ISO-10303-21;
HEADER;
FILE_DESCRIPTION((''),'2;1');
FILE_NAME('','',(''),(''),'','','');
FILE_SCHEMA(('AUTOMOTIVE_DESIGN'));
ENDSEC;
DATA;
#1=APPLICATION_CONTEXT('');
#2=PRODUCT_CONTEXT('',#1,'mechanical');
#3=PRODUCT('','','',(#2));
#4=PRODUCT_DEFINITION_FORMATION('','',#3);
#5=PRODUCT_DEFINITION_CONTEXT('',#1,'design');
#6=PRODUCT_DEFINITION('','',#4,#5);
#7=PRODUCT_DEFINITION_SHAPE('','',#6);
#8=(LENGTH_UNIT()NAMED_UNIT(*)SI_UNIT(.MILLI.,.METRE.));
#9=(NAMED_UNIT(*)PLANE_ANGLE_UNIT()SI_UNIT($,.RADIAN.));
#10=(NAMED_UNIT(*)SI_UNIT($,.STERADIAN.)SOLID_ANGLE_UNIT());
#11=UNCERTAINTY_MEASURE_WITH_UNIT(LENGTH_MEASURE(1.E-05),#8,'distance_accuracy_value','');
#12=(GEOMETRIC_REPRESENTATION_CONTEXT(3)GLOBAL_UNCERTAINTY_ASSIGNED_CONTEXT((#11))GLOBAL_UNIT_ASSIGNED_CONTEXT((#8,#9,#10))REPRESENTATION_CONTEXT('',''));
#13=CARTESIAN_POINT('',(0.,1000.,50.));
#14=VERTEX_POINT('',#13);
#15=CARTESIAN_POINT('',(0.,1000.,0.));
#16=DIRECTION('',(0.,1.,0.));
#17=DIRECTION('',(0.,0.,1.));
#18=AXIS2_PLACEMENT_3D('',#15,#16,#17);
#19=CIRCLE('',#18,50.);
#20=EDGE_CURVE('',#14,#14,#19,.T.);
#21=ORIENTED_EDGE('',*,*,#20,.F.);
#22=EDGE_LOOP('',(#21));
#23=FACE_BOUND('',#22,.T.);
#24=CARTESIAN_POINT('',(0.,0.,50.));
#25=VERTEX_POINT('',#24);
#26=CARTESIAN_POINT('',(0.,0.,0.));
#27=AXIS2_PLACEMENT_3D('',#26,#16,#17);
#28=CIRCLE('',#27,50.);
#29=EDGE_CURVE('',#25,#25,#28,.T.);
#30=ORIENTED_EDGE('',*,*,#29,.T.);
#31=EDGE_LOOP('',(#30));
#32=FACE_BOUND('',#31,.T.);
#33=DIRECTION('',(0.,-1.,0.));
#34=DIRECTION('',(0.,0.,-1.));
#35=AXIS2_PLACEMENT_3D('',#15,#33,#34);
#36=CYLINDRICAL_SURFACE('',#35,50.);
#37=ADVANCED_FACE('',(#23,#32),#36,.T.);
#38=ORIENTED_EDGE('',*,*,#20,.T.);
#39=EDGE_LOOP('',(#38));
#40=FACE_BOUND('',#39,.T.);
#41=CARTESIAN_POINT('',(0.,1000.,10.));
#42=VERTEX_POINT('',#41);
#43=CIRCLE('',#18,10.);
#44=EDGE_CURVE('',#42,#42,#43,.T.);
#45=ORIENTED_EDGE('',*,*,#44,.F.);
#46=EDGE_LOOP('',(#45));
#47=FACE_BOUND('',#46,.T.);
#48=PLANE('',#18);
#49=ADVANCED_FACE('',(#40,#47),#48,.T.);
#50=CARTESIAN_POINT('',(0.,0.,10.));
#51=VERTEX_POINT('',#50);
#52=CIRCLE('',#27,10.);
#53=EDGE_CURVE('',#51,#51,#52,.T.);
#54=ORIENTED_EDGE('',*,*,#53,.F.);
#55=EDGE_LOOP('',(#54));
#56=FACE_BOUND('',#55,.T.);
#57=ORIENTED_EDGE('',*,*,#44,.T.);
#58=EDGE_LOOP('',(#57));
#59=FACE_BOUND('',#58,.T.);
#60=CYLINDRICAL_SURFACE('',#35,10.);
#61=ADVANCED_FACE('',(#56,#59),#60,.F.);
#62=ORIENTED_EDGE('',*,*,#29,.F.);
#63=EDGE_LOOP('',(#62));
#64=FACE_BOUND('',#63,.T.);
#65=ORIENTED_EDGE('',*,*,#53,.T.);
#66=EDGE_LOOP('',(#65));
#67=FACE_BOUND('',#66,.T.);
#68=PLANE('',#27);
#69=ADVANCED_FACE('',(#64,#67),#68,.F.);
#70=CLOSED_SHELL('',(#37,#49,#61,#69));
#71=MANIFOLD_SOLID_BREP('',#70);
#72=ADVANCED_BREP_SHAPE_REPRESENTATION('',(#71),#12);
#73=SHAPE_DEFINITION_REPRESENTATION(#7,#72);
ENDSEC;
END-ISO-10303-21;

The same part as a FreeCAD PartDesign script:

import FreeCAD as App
import Part
import Sketcher

doc = App.newDocument("Part")
body = doc.addObject("PartDesign::Body", "Body")

sketch1 = body.newObject("Sketcher::SketchObject", "Sketch")
sketch1.AttachmentSupport = (doc.getObject("XZ_Plane"), [""])
sketch1.MapMode = "FlatFace"
sketch1.addGeometry([
    Part.Circle(App.Vector(0, 0, 0), App.Vector(0, 0, 1), 50),
    Part.Circle(App.Vector(0, 0, 0), App.Vector(0, 0, 1), 10),
], False)
sketch1.addConstraint([
    Sketcher.Constraint("Coincident", 0, 3, -1, 1),
    Sketcher.Constraint("Coincident", 1, 3, -1, 1),
    Sketcher.Constraint("Diameter", 0, 100.0),
    Sketcher.Constraint("Diameter", 1, 20.0),
])
pad1 = body.newObject("PartDesign::Pad", "Pad")
pad1.Profile = sketch1
pad1.Length = 1000
pad1.Reversed = True

doc.recompute()
